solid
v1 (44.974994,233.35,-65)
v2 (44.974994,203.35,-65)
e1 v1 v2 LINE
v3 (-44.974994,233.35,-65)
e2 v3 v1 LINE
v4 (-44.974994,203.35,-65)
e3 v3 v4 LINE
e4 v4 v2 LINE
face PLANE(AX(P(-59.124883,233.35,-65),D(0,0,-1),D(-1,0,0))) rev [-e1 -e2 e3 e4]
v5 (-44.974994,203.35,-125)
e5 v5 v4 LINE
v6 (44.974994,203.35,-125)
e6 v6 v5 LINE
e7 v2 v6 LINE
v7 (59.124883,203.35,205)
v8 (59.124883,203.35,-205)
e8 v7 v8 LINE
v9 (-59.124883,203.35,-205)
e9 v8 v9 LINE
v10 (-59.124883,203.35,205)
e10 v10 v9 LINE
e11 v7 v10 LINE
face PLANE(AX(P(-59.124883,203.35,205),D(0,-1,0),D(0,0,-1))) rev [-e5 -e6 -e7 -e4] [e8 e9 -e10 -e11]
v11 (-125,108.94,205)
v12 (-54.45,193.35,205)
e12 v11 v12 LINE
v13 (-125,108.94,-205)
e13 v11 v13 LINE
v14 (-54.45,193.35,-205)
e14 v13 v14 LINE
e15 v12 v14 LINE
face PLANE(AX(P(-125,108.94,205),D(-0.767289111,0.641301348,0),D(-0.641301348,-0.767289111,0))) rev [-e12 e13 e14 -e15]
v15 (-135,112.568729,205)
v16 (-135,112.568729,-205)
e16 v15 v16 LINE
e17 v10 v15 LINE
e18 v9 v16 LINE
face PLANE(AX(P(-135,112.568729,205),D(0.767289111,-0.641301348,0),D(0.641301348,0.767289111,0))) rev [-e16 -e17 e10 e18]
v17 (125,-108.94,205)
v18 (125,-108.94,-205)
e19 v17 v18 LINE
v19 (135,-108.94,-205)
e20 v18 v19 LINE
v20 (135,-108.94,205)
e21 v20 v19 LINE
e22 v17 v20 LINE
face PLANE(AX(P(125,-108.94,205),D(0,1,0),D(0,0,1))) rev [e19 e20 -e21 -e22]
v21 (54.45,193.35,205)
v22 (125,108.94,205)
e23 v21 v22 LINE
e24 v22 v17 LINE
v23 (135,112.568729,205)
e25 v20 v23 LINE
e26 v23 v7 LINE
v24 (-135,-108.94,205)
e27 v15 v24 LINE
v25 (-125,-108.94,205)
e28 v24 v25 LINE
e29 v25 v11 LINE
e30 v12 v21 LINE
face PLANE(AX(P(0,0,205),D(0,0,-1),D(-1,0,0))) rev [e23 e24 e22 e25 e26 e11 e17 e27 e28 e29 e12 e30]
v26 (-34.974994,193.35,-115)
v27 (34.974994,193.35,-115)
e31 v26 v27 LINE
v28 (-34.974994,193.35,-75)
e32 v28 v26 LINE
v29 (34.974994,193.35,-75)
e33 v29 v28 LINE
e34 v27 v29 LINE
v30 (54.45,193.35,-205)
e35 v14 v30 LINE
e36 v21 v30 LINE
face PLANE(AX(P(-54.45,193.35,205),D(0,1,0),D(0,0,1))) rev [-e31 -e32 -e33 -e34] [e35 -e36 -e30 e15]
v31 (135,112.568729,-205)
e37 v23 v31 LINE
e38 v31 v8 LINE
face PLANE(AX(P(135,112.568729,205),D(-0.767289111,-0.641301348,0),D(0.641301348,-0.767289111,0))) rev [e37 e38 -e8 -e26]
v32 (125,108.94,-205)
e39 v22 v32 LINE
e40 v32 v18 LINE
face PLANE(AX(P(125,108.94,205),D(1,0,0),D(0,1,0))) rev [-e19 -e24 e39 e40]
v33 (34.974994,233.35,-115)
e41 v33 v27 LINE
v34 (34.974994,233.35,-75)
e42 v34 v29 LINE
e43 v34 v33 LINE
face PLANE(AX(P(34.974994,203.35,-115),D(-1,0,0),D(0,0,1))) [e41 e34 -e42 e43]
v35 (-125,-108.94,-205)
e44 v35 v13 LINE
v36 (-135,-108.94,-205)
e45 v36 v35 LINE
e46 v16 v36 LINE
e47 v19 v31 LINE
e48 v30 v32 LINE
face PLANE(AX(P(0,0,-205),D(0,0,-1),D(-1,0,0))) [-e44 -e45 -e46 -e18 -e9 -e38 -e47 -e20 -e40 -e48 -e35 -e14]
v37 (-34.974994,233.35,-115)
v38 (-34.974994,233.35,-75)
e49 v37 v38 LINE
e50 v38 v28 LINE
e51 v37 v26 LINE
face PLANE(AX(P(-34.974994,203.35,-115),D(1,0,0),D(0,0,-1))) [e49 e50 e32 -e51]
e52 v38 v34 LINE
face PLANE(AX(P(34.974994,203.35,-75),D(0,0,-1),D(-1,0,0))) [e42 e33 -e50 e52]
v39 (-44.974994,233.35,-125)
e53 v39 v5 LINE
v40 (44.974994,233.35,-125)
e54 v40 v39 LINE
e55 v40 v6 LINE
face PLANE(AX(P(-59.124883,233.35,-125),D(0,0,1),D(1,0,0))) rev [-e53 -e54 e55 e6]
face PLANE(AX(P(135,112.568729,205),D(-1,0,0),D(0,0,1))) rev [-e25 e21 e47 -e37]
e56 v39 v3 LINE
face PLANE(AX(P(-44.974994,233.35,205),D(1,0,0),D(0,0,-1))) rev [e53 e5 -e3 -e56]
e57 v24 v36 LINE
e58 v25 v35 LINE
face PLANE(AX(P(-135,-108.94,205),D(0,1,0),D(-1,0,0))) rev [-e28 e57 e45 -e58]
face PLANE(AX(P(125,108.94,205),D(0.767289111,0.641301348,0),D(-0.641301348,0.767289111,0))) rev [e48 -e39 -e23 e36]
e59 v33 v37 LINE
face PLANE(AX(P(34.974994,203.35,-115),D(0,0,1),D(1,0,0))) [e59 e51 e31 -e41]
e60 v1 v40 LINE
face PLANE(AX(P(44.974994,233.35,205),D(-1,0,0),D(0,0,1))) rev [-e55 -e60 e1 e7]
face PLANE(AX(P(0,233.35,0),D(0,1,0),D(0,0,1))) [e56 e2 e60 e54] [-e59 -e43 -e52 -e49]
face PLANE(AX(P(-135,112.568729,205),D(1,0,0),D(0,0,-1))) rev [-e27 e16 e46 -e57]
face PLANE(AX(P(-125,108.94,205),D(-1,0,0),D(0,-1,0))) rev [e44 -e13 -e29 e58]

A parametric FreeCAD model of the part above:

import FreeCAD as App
import Part
import Sketcher
Q = App.Units.Quantity

doc = App.newDocument("Part")
params = doc.addObject("Spreadsheet::Sheet", "Params")
for row, (alias, value) in enumerate([
    ("sketch1_width", "10 mm"),
    ("sketch1_width2", "108.9 mm"),
    ("sketch1_height", "217.88 mm"),
    ("pad1_length", "410 mm"),
    ("sketch2_height", "40 mm"),
    ("sketch3_height", "60 mm"),
    ("sketch3_height2", "40 mm"),
    ("pad2_length", "30 mm"),
], start=1):
    params.set(f"A{row}", alias)
    params.set(f"B{row}", "=" + value)
    params.setAlias(f"B{row}", alias)

body = doc.addObject("PartDesign::Body", "Body")

sketch1 = body.newObject("Sketcher::SketchObject", "Sketch")
sketch1.AttachmentSupport = (doc.getObject("XY_Plane"), [""])
sketch1.MapMode = "FlatFace"
sketch1.addGeometry(Part.LineSegment(App.Vector(-125, 109, 0), App.Vector(-54, 193, 0)), False)
sketch1.addGeometry(Part.LineSegment(App.Vector(-54, 193, 0), App.Vector(54, 193, 0)), False)
sketch1.addGeometry(Part.LineSegment(App.Vector(54, 193, 0), App.Vector(125, 109, 0)), False)
sketch1.addGeometry(Part.LineSegment(App.Vector(125, 109, 0), App.Vector(125, -109, 0)), False)
sketch1.addGeometry(Part.LineSegment(App.Vector(125, -109, 0), App.Vector(135, -109, 0)), False)
sketch1.addGeometry(Part.LineSegment(App.Vector(135, -109, 0), App.Vector(135, 113, 0)), False)
sketch1.addGeometry(Part.LineSegment(App.Vector(135, 113, 0), App.Vector(59, 203, 0)), False)
sketch1.addGeometry(Part.LineSegment(App.Vector(59, 203, 0), App.Vector(-59, 203, 0)), False)
sketch1.addGeometry(Part.LineSegment(App.Vector(-59, 203, 0), App.Vector(-135, 113, 0)), False)
sketch1.addGeometry(Part.LineSegment(App.Vector(-135, 113, 0), App.Vector(-135, -109, 0)), False)
sketch1.addGeometry(Part.LineSegment(App.Vector(-135, -109, 0), App.Vector(-125, -109, 0)), False)
sketch1.addGeometry(Part.LineSegment(App.Vector(-125, -109, 0), App.Vector(-125, 109, 0)), False)
sketch1.addConstraint(Sketcher.Constraint("Coincident", 0, 2, 1, 1))
sketch1.addConstraint(Sketcher.Constraint("Coincident", 1, 2, 2, 1))
sketch1.addConstraint(Sketcher.Constraint("Coincident", 2, 2, 3, 1))
sketch1.addConstraint(Sketcher.Constraint("Coincident", 3, 2, 4, 1))
sketch1.addConstraint(Sketcher.Constraint("Coincident", 4, 2, 5, 1))
sketch1.addConstraint(Sketcher.Constraint("Coincident", 5, 2, 6, 1))
sketch1.addConstraint(Sketcher.Constraint("Coincident", 6, 2, 7, 1))
sketch1.addConstraint(Sketcher.Constraint("Coincident", 7, 2, 8, 1))
sketch1.addConstraint(Sketcher.Constraint("Coincident", 8, 2, 9, 1))
sketch1.addConstraint(Sketcher.Constraint("Coincident", 9, 2, 10, 1))
sketch1.addConstraint(Sketcher.Constraint("Coincident", 10, 2, 11, 1))
sketch1.addConstraint(Sketcher.Constraint("Coincident", 11, 2, 0, 1))
sketch1.addConstraint(Sketcher.Constraint("Horizontal", 1))
sketch1.addConstraint(Sketcher.Constraint("Vertical", 3))
sketch1.addConstraint(Sketcher.Constraint("Horizontal", 4))
sketch1.addConstraint(Sketcher.Constraint("Vertical", 5))
sketch1.addConstraint(Sketcher.Constraint("Horizontal", 7))
sketch1.addConstraint(Sketcher.Constraint("Vertical", 9))
sketch1.addConstraint(Sketcher.Constraint("Horizontal", 10))
sketch1.addConstraint(Sketcher.Constraint("Vertical", 11))
sketch1.addConstraint(Sketcher.Constraint("Symmetric", 2, 2, 10, 2, -1, 1))
sketch1.addConstraint(Sketcher.Constraint("Symmetric", 5, 2, 8, 2, -2))
sketch1.addConstraint(Sketcher.Constraint("Parallel", 2, 6))
sketch1.addConstraint(Sketcher.Constraint("Parallel", 0, 8))
sketch1.addConstraint(Sketcher.Constraint("Horizontal", 4, 2, 9, 2))
sketch1.addConstraint(Sketcher.Constraint("Horizontal", 2, 2, 11, 2))
sketch1.addConstraint(Sketcher.Constraint("Equal", 0, 2))
sketch1.addConstraint(Sketcher.Constraint("DistanceX", 4, 1, 4, 2, Q("10 mm")))
sketch1.addConstraint(Sketcher.Constraint("DistanceX", 1, 1, 1, 2, Q("108.9 mm")))
sketch1.addConstraint(Sketcher.Constraint("DistanceX", -1, 1, 2, 2, Q("125 mm")))
sketch1.addConstraint(Sketcher.Constraint("DistanceY", 1, 2, 6, 2, Q("10 mm")))
sketch1.addConstraint(Sketcher.Constraint("DistanceY", 3, 2, 3, 1, Q("217.88 mm")))
sketch1.addConstraint(Sketcher.Constraint("DistanceY", -1, 1, 0, 2, Q("193.35 mm")))
sketch1.addConstraint(Sketcher.Constraint("DistanceY", 5, 1, 5, 2, Q("221.508729 mm")))
sketch1.setExpression("Constraints[27]", "Params.sketch1_width")
sketch1.setExpression("Constraints[28]", "Params.sketch1_width2")
sketch1.setExpression("Constraints[31]", "Params.sketch1_height")
pad1 = body.newObject("PartDesign::Pad", "Pad")
pad1.Profile = sketch1
pad1.setExpression("Length", "Params.pad1_length")
pad1.Midplane = True

sketch2 = body.newObject("Sketcher::SketchObject", "Sketch001")
sketch2.AttachmentSupport = (doc.getObject("XZ_Plane"), [""])
sketch2.MapMode = "FlatFace"
sketch2.addGeometry(Part.LineSegment(App.Vector(-35, -115, 0), App.Vector(-35, -75, 0)), False)
sketch2.addGeometry(Part.LineSegment(App.Vector(-35, -75, 0), App.Vector(35, -75, 0)), False)
sketch2.addGeometry(Part.LineSegment(App.Vector(35, -75, 0), App.Vector(35, -115, 0)), False)
sketch2.addGeometry(Part.LineSegment(App.Vector(35, -115, 0), App.Vector(-35, -115, 0)), False)
sketch2.addConstraint(Sketcher.Constraint("Coincident", 0, 2, 1, 1))
sketch2.addConstraint(Sketcher.Constraint("Coincident", 1, 2, 2, 1))
sketch2.addConstraint(Sketcher.Constraint("Coincident", 2, 2, 3, 1))
sketch2.addConstraint(Sketcher.Constraint("Coincident", 3, 2, 0, 1))
sketch2.addConstraint(Sketcher.Constraint("Vertical", 0))
sketch2.addConstraint(Sketcher.Constraint("Horizontal", 1))
sketch2.addConstraint(Sketcher.Constraint("Vertical", 2))
sketch2.addConstraint(Sketcher.Constraint("Horizontal", 3))
sketch2.addConstraint(Sketcher.Constraint("DistanceY", 0, 1, 0, 2, Q("40 mm")))
sketch2.addConstraint(Sketcher.Constraint("DistanceY", 0, 2, -1, 1, Q("75 mm")))
sketch2.addConstraint(Sketcher.Constraint("DistanceX", 1, 1, 1, 2, Q("69.949989 mm")))
sketch2.addConstraint(Sketcher.Constraint("DistanceX", 0, 2, -1, 1, Q("34.974994 mm")))
sketch2.setExpression("Constraints[8]", "Params.sketch2_height")
pocket1 = body.newObject("PartDesign::Pocket", "Pocket")
pocket1.Profile = sketch2
pocket1.Type = "ThroughAll"

sketch3 = body.newObject("Sketcher::SketchObject", "Sketch002")
sketch3.AttachmentSupport = (doc.getObject("XZ_Plane"), [""])
sketch3.MapMode = "FlatFace"
sketch3.AttachmentOffset = App.Placement(App.Vector(0, 0, -203.35), App.Rotation())
sketch3.addGeometry(Part.LineSegment(App.Vector(-45, -125, 0), App.Vector(-45, -65, 0)), False)
sketch3.addGeometry(Part.LineSegment(App.Vector(-45, -65, 0), App.Vector(45, -65, 0)), False)
sketch3.addGeometry(Part.LineSegment(App.Vector(45, -65, 0), App.Vector(45, -125, 0)), False)
sketch3.addGeometry(Part.LineSegment(App.Vector(45, -125, 0), App.Vector(-45, -125, 0)), False)
sketch3.addGeometry(Part.LineSegment(App.Vector(35, -75, 0), App.Vector(-35, -75, 0)), False)
sketch3.addGeometry(Part.LineSegment(App.Vector(-35, -75, 0), App.Vector(-35, -115, 0)), False)
sketch3.addGeometry(Part.LineSegment(App.Vector(-35, -115, 0), App.Vector(35, -115, 0)), False)
sketch3.addGeometry(Part.LineSegment(App.Vector(35, -115, 0), App.Vector(35, -75, 0)), False)
sketch3.addConstraint(Sketcher.Constraint("Coincident", 0, 2, 1, 1))
sketch3.addConstraint(Sketcher.Constraint("Coincident", 1, 2, 2, 1))
sketch3.addConstraint(Sketcher.Constraint("Coincident", 2, 2, 3, 1))
sketch3.addConstraint(Sketcher.Constraint("Coincident", 3, 2, 0, 1))
sketch3.addConstraint(Sketcher.Constraint("Coincident", 4, 2, 5, 1))
sketch3.addConstraint(Sketcher.Constraint("Coincident", 5, 2, 6, 1))
sketch3.addConstraint(Sketcher.Constraint("Coincident", 6, 2, 7, 1))
sketch3.addConstraint(Sketcher.Constraint("Coincident", 7, 2, 4, 1))
sketch3.addConstraint(Sketcher.Constraint("Vertical", 0))
sketch3.addConstraint(Sketcher.Constraint("Horizontal", 1))
sketch3.addConstraint(Sketcher.Constraint("Vertical", 2))
sketch3.addConstraint(Sketcher.Constraint("Horizontal", 3))
sketch3.addConstraint(Sketcher.Constraint("Horizontal", 4))
sketch3.addConstraint(Sketcher.Constraint("Vertical", 5))
sketch3.addConstraint(Sketcher.Constraint("Horizontal", 6))
sketch3.addConstraint(Sketcher.Constraint("Vertical", 7))
sketch3.addConstraint(Sketcher.Constraint("DistanceY", 0, 1, 0, 2, Q("60 mm")))
sketch3.addConstraint(Sketcher.Constraint("DistanceY", 5, 2, 5, 1, Q("40 mm")))
sketch3.addConstraint(Sketcher.Constraint("DistanceY", 0, 2, -1, 1, Q("65 mm")))
sketch3.addConstraint(Sketcher.Constraint("DistanceY", 4, 2, -1, 1, Q("75 mm")))
sketch3.addConstraint(Sketcher.Constraint("DistanceX", 0, 2, 4, 2, Q("10 mm")))
sketch3.addConstraint(Sketcher.Constraint("DistanceX", 6, 2, 2, 2, Q("10 mm")))
sketch3.addConstraint(Sketcher.Constraint("DistanceX", 1, 1, 1, 2, Q("89.949989 mm")))
sketch3.addConstraint(Sketcher.Constraint("DistanceX", 0, 2, -1, 1, Q("44.974994 mm")))
sketch3.setExpression("Constraints[16]", "Params.sketch3_height")
sketch3.setExpression("Constraints[17]", "Params.sketch3_height2")
pad2 = body.newObject("PartDesign::Pad", "Pad001")
pad2.Profile = sketch3
pad2.setExpression("Length", "Params.pad2_length")
pad2.Reversed = True

doc.recompute()
